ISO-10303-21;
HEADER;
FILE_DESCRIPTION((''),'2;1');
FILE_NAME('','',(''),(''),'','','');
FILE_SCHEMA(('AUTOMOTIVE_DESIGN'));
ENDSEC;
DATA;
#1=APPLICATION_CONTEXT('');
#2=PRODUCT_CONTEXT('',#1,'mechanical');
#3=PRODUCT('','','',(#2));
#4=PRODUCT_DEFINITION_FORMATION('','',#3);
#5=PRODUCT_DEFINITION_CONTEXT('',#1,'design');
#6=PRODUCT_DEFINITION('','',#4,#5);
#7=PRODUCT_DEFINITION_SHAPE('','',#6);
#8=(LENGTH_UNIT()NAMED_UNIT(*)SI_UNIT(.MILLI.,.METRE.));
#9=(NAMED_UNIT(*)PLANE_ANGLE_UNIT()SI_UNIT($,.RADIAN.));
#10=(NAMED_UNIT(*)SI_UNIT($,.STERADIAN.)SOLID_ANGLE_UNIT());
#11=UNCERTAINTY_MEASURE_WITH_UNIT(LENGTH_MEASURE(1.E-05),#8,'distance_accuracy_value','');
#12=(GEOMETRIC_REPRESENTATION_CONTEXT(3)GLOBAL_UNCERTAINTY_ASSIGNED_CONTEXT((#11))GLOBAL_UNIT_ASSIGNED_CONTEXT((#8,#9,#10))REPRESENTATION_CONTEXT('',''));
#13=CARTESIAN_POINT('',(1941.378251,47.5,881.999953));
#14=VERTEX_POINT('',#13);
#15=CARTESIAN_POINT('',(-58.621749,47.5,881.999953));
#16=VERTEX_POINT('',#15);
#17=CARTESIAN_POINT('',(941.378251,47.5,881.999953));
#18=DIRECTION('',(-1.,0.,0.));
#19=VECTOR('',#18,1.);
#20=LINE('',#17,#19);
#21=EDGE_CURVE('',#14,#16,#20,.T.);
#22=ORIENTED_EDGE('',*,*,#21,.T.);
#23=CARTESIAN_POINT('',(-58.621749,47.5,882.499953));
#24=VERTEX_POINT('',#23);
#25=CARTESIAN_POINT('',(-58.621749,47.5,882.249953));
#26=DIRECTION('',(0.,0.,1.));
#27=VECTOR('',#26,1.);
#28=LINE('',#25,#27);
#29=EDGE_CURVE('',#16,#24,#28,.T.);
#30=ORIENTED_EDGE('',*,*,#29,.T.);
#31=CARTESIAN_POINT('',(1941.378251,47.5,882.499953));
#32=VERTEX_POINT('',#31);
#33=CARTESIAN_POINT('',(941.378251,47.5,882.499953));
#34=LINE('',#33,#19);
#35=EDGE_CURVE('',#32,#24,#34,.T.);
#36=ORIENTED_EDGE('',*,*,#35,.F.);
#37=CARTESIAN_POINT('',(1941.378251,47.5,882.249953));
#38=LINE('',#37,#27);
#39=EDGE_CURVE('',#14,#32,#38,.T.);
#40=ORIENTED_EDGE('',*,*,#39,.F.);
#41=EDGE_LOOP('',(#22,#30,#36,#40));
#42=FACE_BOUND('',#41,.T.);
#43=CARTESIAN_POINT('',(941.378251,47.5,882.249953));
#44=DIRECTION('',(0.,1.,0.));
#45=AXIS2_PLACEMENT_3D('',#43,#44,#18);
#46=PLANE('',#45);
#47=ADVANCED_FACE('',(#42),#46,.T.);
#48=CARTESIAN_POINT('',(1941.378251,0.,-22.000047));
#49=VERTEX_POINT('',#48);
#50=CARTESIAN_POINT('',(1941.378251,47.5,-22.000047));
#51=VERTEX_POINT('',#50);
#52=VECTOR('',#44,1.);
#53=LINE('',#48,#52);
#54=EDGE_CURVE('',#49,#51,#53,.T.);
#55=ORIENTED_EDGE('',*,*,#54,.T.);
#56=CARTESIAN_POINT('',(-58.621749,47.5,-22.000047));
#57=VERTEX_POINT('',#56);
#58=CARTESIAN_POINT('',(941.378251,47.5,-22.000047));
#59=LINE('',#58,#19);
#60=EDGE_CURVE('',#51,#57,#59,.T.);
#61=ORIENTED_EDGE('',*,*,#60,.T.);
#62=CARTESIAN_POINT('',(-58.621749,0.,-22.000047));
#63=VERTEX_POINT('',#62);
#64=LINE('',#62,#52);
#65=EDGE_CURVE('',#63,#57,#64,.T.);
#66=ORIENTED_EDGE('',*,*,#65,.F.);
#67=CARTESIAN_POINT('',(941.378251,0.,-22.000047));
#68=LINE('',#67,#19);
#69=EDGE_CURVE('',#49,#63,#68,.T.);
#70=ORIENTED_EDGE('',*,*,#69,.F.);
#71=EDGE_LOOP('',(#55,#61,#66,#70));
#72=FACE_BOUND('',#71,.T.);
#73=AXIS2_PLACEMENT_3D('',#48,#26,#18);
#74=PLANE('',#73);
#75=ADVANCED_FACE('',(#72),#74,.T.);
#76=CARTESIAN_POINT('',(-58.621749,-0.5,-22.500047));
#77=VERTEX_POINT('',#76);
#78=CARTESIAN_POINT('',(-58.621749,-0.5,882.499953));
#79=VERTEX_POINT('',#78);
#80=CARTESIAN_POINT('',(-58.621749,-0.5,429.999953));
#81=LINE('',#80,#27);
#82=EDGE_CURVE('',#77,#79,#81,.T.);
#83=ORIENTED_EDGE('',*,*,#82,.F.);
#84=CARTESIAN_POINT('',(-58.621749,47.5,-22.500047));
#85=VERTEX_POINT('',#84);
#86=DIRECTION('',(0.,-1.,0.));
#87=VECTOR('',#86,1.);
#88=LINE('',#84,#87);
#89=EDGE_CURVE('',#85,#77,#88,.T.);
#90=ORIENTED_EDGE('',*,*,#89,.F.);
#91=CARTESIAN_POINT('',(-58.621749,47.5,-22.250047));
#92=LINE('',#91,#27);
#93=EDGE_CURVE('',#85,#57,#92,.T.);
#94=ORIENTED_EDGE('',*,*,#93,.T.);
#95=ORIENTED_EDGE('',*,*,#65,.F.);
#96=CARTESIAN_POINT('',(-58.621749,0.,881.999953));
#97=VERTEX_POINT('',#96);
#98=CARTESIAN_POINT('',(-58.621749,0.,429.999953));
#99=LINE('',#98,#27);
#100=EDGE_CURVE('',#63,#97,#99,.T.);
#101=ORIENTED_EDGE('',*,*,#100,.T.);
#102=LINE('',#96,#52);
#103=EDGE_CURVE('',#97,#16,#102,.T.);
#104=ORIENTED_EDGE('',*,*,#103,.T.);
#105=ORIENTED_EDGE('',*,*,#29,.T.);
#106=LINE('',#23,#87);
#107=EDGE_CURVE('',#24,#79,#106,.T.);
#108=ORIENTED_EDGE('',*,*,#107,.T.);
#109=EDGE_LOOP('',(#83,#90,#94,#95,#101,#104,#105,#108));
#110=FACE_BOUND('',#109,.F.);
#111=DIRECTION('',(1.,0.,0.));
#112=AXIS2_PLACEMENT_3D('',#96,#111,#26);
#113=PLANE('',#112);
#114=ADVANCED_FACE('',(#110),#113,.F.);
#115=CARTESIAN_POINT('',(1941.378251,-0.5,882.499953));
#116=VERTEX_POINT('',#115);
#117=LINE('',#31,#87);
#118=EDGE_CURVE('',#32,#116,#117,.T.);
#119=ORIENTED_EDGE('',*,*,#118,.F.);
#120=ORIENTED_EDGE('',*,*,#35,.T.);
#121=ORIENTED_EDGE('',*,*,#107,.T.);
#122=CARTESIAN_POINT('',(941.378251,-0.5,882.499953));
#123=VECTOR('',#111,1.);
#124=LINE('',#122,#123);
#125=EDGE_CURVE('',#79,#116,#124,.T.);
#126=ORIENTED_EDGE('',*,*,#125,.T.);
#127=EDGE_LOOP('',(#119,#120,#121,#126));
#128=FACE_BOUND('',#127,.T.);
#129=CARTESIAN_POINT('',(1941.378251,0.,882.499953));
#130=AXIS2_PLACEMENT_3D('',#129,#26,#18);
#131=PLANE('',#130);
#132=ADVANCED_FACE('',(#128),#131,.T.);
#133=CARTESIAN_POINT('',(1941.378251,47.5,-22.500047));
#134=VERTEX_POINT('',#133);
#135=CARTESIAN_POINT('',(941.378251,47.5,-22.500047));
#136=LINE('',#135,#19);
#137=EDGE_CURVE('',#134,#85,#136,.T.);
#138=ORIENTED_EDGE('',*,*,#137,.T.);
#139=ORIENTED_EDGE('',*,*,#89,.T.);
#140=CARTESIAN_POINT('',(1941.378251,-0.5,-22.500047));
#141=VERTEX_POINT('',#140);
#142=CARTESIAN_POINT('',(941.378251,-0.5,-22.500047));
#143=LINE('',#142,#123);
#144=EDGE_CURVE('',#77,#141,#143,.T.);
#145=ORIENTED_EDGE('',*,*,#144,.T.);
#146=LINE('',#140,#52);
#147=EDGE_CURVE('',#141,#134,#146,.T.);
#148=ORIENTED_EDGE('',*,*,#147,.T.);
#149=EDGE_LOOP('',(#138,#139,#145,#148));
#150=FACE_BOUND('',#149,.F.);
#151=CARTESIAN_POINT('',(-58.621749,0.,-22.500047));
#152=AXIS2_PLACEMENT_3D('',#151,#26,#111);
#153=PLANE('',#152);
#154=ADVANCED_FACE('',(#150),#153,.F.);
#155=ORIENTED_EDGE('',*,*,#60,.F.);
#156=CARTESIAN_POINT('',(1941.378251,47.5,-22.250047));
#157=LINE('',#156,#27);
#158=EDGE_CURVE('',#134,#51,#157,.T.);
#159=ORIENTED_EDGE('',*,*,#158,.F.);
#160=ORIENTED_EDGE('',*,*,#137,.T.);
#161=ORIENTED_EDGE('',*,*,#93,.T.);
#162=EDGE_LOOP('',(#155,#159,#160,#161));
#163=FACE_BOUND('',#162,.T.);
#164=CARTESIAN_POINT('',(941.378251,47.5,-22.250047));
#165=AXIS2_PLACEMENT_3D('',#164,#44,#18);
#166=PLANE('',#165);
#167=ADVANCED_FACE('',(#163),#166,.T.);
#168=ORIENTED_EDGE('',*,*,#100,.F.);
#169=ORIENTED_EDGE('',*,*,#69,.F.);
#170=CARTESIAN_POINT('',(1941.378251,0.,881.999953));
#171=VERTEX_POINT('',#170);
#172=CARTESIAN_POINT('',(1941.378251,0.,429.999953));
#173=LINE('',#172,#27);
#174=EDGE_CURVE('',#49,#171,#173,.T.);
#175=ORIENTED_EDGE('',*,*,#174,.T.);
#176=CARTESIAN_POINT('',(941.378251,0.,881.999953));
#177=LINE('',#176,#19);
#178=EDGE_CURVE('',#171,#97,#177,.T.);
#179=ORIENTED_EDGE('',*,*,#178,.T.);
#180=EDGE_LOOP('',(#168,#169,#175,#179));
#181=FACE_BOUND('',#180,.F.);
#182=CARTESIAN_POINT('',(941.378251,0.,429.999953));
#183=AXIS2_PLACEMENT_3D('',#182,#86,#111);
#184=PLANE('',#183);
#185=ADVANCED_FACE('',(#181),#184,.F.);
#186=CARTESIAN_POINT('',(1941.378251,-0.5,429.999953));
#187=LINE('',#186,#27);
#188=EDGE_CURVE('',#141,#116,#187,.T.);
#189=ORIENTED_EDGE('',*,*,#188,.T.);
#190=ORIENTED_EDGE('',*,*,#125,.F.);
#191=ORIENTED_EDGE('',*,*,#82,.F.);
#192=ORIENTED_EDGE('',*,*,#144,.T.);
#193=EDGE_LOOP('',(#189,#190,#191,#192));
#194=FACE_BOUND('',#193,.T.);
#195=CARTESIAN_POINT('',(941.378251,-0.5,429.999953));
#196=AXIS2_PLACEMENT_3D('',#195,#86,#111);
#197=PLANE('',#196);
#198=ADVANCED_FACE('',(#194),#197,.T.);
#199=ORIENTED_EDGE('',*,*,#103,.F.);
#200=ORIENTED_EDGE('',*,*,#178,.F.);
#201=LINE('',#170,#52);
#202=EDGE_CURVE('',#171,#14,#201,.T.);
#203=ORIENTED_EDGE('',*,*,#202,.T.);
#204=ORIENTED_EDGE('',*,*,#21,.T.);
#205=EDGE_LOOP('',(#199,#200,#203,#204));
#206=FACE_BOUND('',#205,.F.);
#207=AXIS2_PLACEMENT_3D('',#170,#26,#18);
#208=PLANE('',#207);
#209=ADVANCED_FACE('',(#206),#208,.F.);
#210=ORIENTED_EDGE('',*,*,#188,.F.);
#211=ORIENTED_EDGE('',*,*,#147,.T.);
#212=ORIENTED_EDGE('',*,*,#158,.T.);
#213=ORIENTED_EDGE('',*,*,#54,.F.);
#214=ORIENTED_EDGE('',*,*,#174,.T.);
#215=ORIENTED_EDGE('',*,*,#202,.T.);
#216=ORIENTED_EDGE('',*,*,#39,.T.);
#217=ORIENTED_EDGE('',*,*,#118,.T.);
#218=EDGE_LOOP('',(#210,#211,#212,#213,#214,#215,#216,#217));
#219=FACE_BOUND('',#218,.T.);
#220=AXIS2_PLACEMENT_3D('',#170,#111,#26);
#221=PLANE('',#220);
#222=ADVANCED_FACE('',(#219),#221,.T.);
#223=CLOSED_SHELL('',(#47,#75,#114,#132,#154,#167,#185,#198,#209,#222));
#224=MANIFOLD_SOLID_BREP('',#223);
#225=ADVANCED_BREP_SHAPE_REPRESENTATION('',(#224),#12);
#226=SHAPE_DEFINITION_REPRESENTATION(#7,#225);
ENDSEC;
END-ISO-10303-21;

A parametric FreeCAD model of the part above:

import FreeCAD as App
import Part
import Sketcher

V = App.Vector
Q = App.Units.Quantity


def add_polygon(sketch, points):
    """Adds a closed chain of lines whose ends are joined by coincident constraints."""
    first, n = sketch.GeometryCount, len(points)
    for a, b in zip(points, points[1:] + points[:1]):
        sketch.addGeometry(Part.LineSegment(App.Vector(*a, 0), App.Vector(*b, 0)), False)
    for i in range(n):
        sketch.addConstraint(Sketcher.Constraint("Coincident", first + i, 2, first + (i + 1) % n, 1))

doc = App.newDocument("Part")
body = doc.addObject("PartDesign::Body", "Body")

sketch1 = body.newObject("Sketcher::SketchObject", "Sketch")
sketch1.AttachmentSupport = (doc.getObject("XZ_Plane"), [""])
sketch1.MapMode = "FlatFace"
add_polygon(sketch1, [(-58.621749, 882.499953), (-58.621749, -22.500047), (1941.378251, -22.500047), (1941.378251, 882.499953)])
sketch1.addConstraint([
    Sketcher.Constraint("Vertical", 0),
    Sketcher.Constraint("Horizontal", 1),
    Sketcher.Constraint("Vertical", 2),
    Sketcher.Constraint("Horizontal", 3),
    Sketcher.Constraint("DistanceX", 1, 1, 1, 2, Q("2000 mm")),
    Sketcher.Constraint("DistanceY", 0, 2, 0, 1, Q("905 mm")),
    Sketcher.Constraint("DistanceX", 0, 2, -1, 1, Q("58.621749 mm")),
    Sketcher.Constraint("DistanceY", 0, 2, -1, 1, Q("22.500047 mm")),
])
pad1 = body.newObject("PartDesign::Pad", "Pad")
pad1.Profile = sketch1
pad1.Length = 0.5

sketch2 = body.newObject("Sketcher::SketchObject", "Sketch001")
sketch2.AttachmentSupport = (doc.getObject("XZ_Plane"), [""])
sketch2.MapMode = "FlatFace"
add_polygon(sketch2, [(1941.378251, 882.499953), (1941.378251, 881.999953), (-58.621749, 881.999953), (-58.621749, 882.499953)])
add_polygon(sketch2, [(1941.378251, -22.000047), (1941.378251, -22.500047), (-58.621749, -22.500047), (-58.621749, -22.000047)])
sketch2.addConstraint([
    Sketcher.Constraint("Vertical", 0),
    Sketcher.Constraint("Horizontal", 1),
    Sketcher.Constraint("Vertical", 2),
    Sketcher.Constraint("Horizontal", 3),
    Sketcher.Constraint("Vertical", 4),
    Sketcher.Constraint("Horizontal", 5),
    Sketcher.Constraint("Vertical", 6),
    Sketcher.Constraint("Horizontal", 7),
    Sketcher.Constraint("Vertical", 3, 2, 4, 2),
    Sketcher.Constraint("Vertical", 2, 2, 5, 2),
    Sketcher.Constraint("Equal", 2, 4),
    Sketcher.Constraint("DistanceX", 1, 2, 1, 1, Q("2000 mm")),
    Sketcher.Constraint("DistanceY", 0, 2, 0, 1, Q("0.5 mm")),
    Sketcher.Constraint("DistanceY", 4, 2, 3, 2, Q("905 mm")),
    Sketcher.Constraint("DistanceX", -1, 1, 0, 2, Q("1941.378251 mm")),
    Sketcher.Constraint("DistanceY", -1, 1, 0, 2, Q("881.999953 mm")),
])
pad2 = body.newObject("PartDesign::Pad", "Pad001")
pad2.Profile = sketch2
pad2.Length = 47.5
pad2.Reversed = True

doc.recompute()
